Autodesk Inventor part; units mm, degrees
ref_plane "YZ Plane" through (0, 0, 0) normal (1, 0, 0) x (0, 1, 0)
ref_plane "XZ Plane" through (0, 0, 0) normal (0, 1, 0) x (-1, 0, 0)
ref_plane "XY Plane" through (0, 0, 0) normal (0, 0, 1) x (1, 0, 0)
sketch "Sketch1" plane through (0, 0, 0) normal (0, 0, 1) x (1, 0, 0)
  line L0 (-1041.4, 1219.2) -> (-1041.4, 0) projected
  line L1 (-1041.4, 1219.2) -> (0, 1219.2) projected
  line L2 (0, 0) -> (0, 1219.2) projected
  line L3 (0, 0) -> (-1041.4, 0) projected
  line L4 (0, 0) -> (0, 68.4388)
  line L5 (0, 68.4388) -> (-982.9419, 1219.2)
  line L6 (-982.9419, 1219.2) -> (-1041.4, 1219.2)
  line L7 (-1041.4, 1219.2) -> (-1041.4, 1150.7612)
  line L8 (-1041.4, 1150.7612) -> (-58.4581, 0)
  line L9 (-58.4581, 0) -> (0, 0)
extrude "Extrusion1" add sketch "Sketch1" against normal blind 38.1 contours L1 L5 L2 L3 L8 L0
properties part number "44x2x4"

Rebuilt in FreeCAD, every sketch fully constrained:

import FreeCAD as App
import Part
import Sketcher
from FreeCAD import Vector
Q = App.Units.Quantity


def add_polygon(sketch, points):
    """Adds a closed chain of lines whose ends are joined by coincident constraints."""
    first, n = sketch.GeometryCount, len(points)
    for a, b in zip(points, points[1:] + points[:1]):
        sketch.addGeometry(Part.LineSegment(App.Vector(*a, 0), App.Vector(*b, 0)), False)
    for i in range(n):
        sketch.addConstraint(Sketcher.Constraint("Coincident", first + i, 2, first + (i + 1) % n, 1))

doc = App.newDocument("Part")
body = doc.addObject("PartDesign::Body", "Body")

# Sketch on XY plane
sketch1 = body.newObject("Sketcher::SketchObject", "Sketch")
sketch1.AttachmentSupport = (doc.getObject("XY_Plane"), [""])
sketch1.MapMode = "FlatFace"
add_polygon(sketch1, [(-983, 1219), (-1041, 1219), (-1041, 1151), (-58, 0), (0, 0), (0, 68)])  # lines 0-5
sketch1.addConstraint(Sketcher.Constraint("Horizontal", 0))
sketch1.addConstraint(Sketcher.Constraint("Vertical", 1))
sketch1.addConstraint(Sketcher.Constraint("Horizontal", 3))
sketch1.addConstraint(Sketcher.Constraint("Vertical", 4))
sketch1.addConstraint(Sketcher.Constraint("Coincident", 3, 2, -1, 1))
sketch1.addConstraint(Sketcher.Constraint("Parallel", 2, 5))
sketch1.addConstraint(Sketcher.Constraint("Equal", 0, 3))
sketch1.addConstraint(Sketcher.Constraint("DistanceX", 0, 2, -1, 1, Q("41 in")))
sketch1.addConstraint(Sketcher.Constraint("DistanceY", -1, 1, 0, 2, Q("48 in")))
sketch1.addConstraint(Sketcher.Constraint("DistanceX", 0, 2, 0, 1, Q("2.3015 in")))
sketch1.addConstraint(Sketcher.Constraint("DistanceY", 1, 2, 1, 1, 68.4388))
pad1 = body.newObject("PartDesign::Pad", "Pad")
pad1.Profile = sketch1
pad1.Length = Q("1.5 in")
pad1.Reversed = True

doc.recompute()
